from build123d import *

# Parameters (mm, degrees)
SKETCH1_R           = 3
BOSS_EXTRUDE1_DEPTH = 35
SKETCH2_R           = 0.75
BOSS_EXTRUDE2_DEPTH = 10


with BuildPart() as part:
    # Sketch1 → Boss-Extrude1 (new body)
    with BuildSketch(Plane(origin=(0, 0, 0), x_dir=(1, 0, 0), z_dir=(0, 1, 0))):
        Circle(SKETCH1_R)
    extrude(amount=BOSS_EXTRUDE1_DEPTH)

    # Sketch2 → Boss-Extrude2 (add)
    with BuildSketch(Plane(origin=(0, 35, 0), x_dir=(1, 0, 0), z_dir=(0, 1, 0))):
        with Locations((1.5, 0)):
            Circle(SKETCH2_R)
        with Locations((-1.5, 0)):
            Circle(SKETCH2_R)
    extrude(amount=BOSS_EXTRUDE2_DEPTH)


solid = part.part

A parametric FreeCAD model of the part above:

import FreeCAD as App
import Part
import Sketcher

doc = App.newDocument("Part")
body = doc.addObject("PartDesign::Body", "Body")

sketch1 = doc.addObject("Sketcher::SketchObject", "Sketch")
body.addObject(sketch1)
sketch1.AttachmentSupport = (doc.XZ_Plane, [""])
sketch1.MapMode = "FlatFace"
sketch1.addGeometry(Part.Circle(App.Vector(0, 0, 0), App.Vector(0, 0, 1), 3), False)
sketch1.addConstraint([
    Sketcher.Constraint("Coincident", 0, 3, -1, 1),
    Sketcher.Constraint("Diameter", 0, 6.0),
])
pad1 = doc.addObject("PartDesign::Pad", "Pad")
body.addObject(pad1)
pad1.Profile = sketch1
pad1.Length = 35
pad1.Reversed = True

sketch2 = doc.addObject("Sketcher::SketchObject", "Sketch001")
body.addObject(sketch2)
sketch2.AttachmentSupport = (doc.XZ_Plane, [""])
sketch2.MapMode = "FlatFace"
sketch2.AttachmentOffset = App.Placement(App.Vector(0, 0, -35), App.Rotation())
sketch2.addGeometry([
    Part.Circle(App.Vector(1.5, 0, 0), App.Vector(0, 0, 1), 0.75),
    Part.Circle(App.Vector(-1.5, 0, 0), App.Vector(0, 0, 1), 0.75),
], False)
sketch2.addConstraint([
    Sketcher.Constraint("Equal", 0, 1),
    Sketcher.Constraint("Symmetric", 0, 3, 1, 3, -1, 1),
    Sketcher.Constraint("PointOnObject", 0, 3, -1),
    Sketcher.Constraint("Diameter", 0, 1.5),
    Sketcher.Constraint("DistanceX", 1, 3, 0, 3, 3.0),
])
pad2 = doc.addObject("PartDesign::Pad", "Pad001")
body.addObject(pad2)
pad2.Profile = sketch2
pad2.Length = 10
pad2.Reversed = True

doc.recompute()
